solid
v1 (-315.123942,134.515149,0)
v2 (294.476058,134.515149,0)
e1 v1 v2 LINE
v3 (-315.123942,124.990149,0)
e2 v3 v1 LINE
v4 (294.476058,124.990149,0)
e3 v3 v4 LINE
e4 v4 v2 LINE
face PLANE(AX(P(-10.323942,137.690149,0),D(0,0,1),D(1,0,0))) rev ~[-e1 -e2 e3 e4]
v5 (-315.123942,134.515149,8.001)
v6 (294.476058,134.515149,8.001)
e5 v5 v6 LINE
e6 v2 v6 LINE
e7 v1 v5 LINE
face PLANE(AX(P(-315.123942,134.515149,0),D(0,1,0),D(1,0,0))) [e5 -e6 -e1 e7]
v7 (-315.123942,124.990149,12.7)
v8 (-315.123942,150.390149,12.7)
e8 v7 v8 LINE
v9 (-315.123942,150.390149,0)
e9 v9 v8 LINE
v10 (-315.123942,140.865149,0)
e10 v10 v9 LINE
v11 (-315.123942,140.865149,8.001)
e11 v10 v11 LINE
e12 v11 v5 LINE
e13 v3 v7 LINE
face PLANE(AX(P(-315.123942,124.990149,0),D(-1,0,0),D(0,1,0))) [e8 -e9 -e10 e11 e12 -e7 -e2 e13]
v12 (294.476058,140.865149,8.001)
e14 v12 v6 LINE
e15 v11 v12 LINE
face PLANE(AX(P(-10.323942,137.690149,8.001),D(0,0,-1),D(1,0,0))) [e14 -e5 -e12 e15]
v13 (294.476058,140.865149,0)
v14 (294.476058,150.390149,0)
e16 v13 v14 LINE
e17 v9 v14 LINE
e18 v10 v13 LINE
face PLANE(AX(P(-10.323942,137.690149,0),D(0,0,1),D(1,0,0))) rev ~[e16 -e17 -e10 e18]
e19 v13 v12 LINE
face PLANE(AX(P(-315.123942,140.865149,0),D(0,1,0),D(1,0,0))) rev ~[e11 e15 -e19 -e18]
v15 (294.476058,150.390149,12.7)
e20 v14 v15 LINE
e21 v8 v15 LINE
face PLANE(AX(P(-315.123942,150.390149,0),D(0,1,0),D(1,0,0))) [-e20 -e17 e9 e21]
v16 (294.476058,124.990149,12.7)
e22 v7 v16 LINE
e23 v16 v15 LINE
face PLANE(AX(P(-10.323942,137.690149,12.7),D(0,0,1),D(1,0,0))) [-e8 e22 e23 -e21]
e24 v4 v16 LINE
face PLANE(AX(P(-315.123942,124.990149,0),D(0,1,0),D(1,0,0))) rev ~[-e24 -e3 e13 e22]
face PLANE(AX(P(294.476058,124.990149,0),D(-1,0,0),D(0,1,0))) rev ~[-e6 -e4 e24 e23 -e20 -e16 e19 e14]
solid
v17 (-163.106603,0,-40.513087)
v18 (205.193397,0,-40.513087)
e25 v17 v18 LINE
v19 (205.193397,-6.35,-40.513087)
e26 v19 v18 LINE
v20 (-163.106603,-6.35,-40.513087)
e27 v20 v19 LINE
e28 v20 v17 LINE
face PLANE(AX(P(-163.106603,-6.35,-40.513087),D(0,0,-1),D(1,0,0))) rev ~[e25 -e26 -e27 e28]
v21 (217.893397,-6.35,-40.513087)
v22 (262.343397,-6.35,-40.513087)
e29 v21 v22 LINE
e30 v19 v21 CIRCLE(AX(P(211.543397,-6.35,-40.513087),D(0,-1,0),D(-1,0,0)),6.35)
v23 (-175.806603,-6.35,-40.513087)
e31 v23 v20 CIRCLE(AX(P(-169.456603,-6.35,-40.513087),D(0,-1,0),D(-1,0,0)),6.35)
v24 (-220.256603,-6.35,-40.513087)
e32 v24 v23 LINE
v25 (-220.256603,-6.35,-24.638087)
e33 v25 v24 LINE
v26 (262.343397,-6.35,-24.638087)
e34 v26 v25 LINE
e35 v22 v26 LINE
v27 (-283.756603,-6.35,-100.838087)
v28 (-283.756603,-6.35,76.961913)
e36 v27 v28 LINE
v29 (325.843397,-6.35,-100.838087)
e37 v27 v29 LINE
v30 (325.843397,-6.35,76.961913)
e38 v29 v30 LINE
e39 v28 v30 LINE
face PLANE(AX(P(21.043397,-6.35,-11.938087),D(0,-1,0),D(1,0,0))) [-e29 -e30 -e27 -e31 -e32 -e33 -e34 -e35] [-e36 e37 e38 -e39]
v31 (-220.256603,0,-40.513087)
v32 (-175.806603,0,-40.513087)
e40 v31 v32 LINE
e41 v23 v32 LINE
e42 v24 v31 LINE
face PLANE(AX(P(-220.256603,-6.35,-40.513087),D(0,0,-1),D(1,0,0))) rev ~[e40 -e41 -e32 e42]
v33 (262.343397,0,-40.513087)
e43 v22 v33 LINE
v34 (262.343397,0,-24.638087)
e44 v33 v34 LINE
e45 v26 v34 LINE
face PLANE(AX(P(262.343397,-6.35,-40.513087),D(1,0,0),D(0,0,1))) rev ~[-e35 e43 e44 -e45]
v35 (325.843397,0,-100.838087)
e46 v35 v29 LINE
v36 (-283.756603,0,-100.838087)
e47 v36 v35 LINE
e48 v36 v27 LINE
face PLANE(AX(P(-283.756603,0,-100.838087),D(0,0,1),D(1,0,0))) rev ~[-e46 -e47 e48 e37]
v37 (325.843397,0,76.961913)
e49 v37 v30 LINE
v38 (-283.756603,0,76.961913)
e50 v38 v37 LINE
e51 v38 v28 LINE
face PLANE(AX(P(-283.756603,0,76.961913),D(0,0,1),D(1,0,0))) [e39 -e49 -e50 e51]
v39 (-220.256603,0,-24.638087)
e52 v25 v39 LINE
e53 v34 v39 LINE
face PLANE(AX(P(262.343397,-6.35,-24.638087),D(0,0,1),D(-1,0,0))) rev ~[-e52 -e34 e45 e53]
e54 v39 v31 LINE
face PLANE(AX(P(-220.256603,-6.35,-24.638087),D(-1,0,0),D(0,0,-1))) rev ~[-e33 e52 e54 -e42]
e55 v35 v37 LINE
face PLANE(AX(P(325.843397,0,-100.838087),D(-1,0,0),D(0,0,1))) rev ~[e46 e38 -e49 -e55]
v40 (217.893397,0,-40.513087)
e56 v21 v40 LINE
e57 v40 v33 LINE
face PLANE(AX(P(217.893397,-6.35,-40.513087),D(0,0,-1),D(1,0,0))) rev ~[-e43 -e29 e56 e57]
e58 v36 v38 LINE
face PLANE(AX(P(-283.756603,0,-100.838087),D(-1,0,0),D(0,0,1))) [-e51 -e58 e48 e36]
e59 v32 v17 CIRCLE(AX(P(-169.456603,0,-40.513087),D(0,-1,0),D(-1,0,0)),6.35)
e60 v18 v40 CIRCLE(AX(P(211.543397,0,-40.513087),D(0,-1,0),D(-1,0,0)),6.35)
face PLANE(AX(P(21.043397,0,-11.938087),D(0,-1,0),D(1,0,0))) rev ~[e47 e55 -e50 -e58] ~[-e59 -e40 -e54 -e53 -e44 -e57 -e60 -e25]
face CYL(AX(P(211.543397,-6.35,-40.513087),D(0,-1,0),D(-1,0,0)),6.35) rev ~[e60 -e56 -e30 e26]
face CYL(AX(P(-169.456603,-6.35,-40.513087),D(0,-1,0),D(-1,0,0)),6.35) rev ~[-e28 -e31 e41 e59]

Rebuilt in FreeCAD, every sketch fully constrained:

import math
import FreeCAD as App
import Part
import Sketcher

V = App.Vector
Q = App.Units.Quantity


def add_polygon(sketch, points):
    """Adds a closed chain of lines whose ends are joined by coincident constraints."""
    first, n = sketch.GeometryCount, len(points)
    for a, b in zip(points, points[1:] + points[:1]):
        sketch.addGeometry(Part.LineSegment(App.Vector(*a, 0), App.Vector(*b, 0)), False)
    for i in range(n):
        sketch.addConstraint(Sketcher.Constraint("Coincident", first + i, 2, first + (i + 1) % n, 1))

doc = App.newDocument("Part")
body = doc.addObject("PartDesign::Body", "Body")

sketch1 = doc.addObject("Sketcher::SketchObject", "Sketch")
body.addObject(sketch1)
sketch1.AttachmentSupport = (doc.XZ_Plane, [""])
sketch1.MapMode = "FlatFace"
add_polygon(sketch1, [(-284, 77), (-284, -101), (326, -101), (326, 77)])
sketch1.addConstraint([
    Sketcher.Constraint("Vertical", 0),
    Sketcher.Constraint("Horizontal", 1),
    Sketcher.Constraint("Vertical", 2),
    Sketcher.Constraint("Horizontal", 3),
    Sketcher.Constraint("DistanceX", 1, 1, 1, 2, Q("24 in")),
    Sketcher.Constraint("DistanceY", 0, 2, 0, 1, Q("7 in")),
    Sketcher.Constraint("DistanceX", 0, 2, -1, 1, Q("283.756603 mm")),
    Sketcher.Constraint("DistanceY", 0, 2, -1, 1, Q("100.838087 mm")),
])
pad1 = doc.addObject("PartDesign::Pad", "Pad")
body.addObject(pad1)
pad1.Profile = sketch1
pad1.Length = Q("0.25 in")

sketch2 = doc.addObject("Sketcher::SketchObject", "Sketch001")
body.addObject(sketch2)
sketch2.AttachmentSupport = (doc.XZ_Plane, [""])
sketch2.MapMode = "FlatFace"
sketch2.AttachmentOffset = App.Placement(V(0, 0, 0.25 * 25.4), App.Rotation())
sketch2.addGeometry([
    Part.LineSegment(V(262, -25, 0), V(-220, -25, 0)),
    Part.LineSegment(V(-220, -25, 0), V(-220, -41, 0)),
    Part.LineSegment(V(-220, -41, 0), V(-176, -41, 0)),
    Part.ArcOfCircle(Part.Circle(V(-169, -41, 0), V(0, 0, 1), 6), math.radians(180), math.radians(360)),
    Part.LineSegment(V(-163, -41, 0), V(205, -41, 0)),
    Part.ArcOfCircle(Part.Circle(V(212, -41, 0), V(0, 0, 1), 6), math.radians(180), math.radians(360)),
    Part.LineSegment(V(218, -41, 0), V(262, -41, 0)),
    Part.LineSegment(V(262, -41, 0), V(262, -25, 0)),
], False)
sketch2.addConstraint([
    Sketcher.Constraint("Coincident", 0, 2, 1, 1),
    Sketcher.Constraint("Coincident", 1, 2, 2, 1),
    Sketcher.Constraint("Coincident", 2, 2, 3, 1),
    Sketcher.Constraint("Coincident", 3, 2, 4, 1),
    Sketcher.Constraint("Coincident", 4, 2, 5, 1),
    Sketcher.Constraint("Coincident", 5, 2, 6, 1),
    Sketcher.Constraint("Coincident", 6, 2, 7, 1),
    Sketcher.Constraint("Coincident", 7, 2, 0, 1),
    Sketcher.Constraint("Horizontal", 0),
    Sketcher.Constraint("Vertical", 1),
    Sketcher.Constraint("Horizontal", 2),
    Sketcher.Constraint("Horizontal", 4),
    Sketcher.Constraint("Horizontal", 6),
    Sketcher.Constraint("Vertical", 7),
    Sketcher.Constraint("Equal", 3, 5),
    Sketcher.Constraint("Horizontal", 3, 3, 5, 3),
    Sketcher.Constraint("Horizontal", 5, 3, 1, 2),
    Sketcher.Constraint("Horizontal", 2, 2, 3, 2),
    Sketcher.Constraint("Horizontal", 4, 2, 5, 2),
    Sketcher.Constraint("Equal", 2, 6),
    Sketcher.Constraint("DistanceX", 0, 2, 0, 1, Q("19 in")),
    Sketcher.Constraint("Radius", 3, Q("0.25 in")),
    Sketcher.Constraint("DistanceX", 4, 1, 4, 2, Q("14.5 in")),
    Sketcher.Constraint("DistanceY", 1, 2, 1, 1, Q("0.625 in")),
    Sketcher.Constraint("DistanceX", 3, 3, -1, 1, Q("169.456603 mm")),
    Sketcher.Constraint("DistanceY", 3, 3, -1, 1, Q("40.513087 mm")),
])
pocket1 = doc.addObject("PartDesign::Pocket", "Pocket")
body.addObject(pocket1)
pocket1.Profile = sketch2
pocket1.Length = Q("0.25 in")
body2 = doc.addObject("PartDesign::Body", "Body001")

sketch3 = doc.addObject("Sketcher::SketchObject", "Sketch002")
body2.addObject(sketch3)
sketch3.AttachmentSupport = (doc.getObject("XY_Plane001"), [""])
sketch3.MapMode = "FlatFace"
add_polygon(sketch3, [(-315, 150), (-315, 125), (294, 125), (294, 150)])
sketch3.addConstraint([
    Sketcher.Constraint("Vertical", 0),
    Sketcher.Constraint("Horizontal", 1),
    Sketcher.Constraint("Vertical", 2),
    Sketcher.Constraint("Horizontal", 3),
    Sketcher.Constraint("DistanceX", 1, 1, 1, 2, Q("24 in")),
    Sketcher.Constraint("DistanceY", 0, 2, 0, 1, Q("1 in")),
    Sketcher.Constraint("DistanceX", 0, 2, -1, 1, Q("315.123942 mm")),
    Sketcher.Constraint("DistanceY", -1, 1, 0, 2, Q("124.990149 mm")),
])
pad2 = doc.addObject("PartDesign::Pad", "Pad001")
body2.addObject(pad2)
pad2.Profile = sketch3
pad2.Length = Q("0.5 in")

sketch4 = doc.addObject("Sketcher::SketchObject", "Sketch003")
body2.addObject(sketch4)
sketch4.AttachmentSupport = (doc.getObject("XY_Plane001"), [""])
sketch4.MapMode = "FlatFace"
add_polygon(sketch4, [(-315, 135), (-315, 141), (294, 141), (294, 135)])
sketch4.addConstraint([
    Sketcher.Constraint("Vertical", 0),
    Sketcher.Constraint("Horizontal", 1),
    Sketcher.Constraint("Vertical", 2),
    Sketcher.Constraint("Horizontal", 3),
    Sketcher.Constraint("DistanceX", 1, 1, 1, 2, Q("24 in")),
    Sketcher.Constraint("DistanceY", 0, 1, 0, 2, Q("0.25 in")),
    Sketcher.Constraint("DistanceX", 0, 2, -1, 1, Q("315.123942 mm")),
    Sketcher.Constraint("DistanceY", -1, 1, 0, 2, Q("140.865149 mm")),
])
pocket2 = doc.addObject("PartDesign::Pocket", "Pocket001")
body2.addObject(pocket2)
pocket2.Profile = sketch4
pocket2.Length = Q("0.315 in")
pocket2.Reversed = True

doc.recompute()
